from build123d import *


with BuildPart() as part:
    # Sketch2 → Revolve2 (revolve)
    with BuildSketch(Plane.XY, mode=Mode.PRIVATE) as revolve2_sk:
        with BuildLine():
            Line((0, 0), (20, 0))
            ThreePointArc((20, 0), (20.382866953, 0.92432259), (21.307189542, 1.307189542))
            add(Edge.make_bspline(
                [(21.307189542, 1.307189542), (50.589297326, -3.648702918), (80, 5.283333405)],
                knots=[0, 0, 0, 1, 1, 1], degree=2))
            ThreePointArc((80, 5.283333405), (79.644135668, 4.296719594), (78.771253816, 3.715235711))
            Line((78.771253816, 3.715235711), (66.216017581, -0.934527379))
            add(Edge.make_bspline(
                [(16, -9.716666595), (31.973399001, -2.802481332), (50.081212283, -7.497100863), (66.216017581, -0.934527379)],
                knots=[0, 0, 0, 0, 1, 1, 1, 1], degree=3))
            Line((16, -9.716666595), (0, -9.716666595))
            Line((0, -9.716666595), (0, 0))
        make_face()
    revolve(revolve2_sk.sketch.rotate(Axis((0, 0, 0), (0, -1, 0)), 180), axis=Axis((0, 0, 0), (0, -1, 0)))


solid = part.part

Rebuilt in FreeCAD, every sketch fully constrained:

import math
import FreeCAD as App
import Part
import Sketcher

V = App.Vector

doc = App.newDocument("Part")
params = doc.addObject("Spreadsheet::Sheet", "Params")
for row, (alias, value) in enumerate([
    ("sketch1_width", "20 mm"),
    ("revolution_angle", "360 deg"),
], start=1):
    params.set(f"A{row}", alias)
    params.set(f"B{row}", "=" + value)
    params.setAlias(f"B{row}", alias)

body = doc.addObject("PartDesign::Body", "Body")

sketch1 = body.newObject("Sketcher::SketchObject", "Sketch")
sketch1.AttachmentSupport = (doc.getObject("XY_Plane"), [""])
sketch1.MapMode = "FlatFace"
sketch1.addGeometry([
    Part.LineSegment(V(20, 0, 0), V(0, 0, 0)),
    Part.LineSegment(V(0, 0, 0), V(0, -9.716667, 0)),
    Part.LineSegment(V(0, -9.716667, 0), V(16, -9.716667, 0)),
    Part.BSplineCurve([V(16, -9.716667, 0), V(31.973399, -2.802481, 0), V(50.081212, -7.497101, 0), V(66.216018, -0.934527, 0)], [4, 4], [0, 1], False, 3, [1, 1, 1, 1], False),
    Part.LineSegment(V(66.216018, -0.934527, 0), V(78.771254, 3.715236, 0)),
    Part.ArcOfCircle(Part.Circle(V(78.325884, 5.329689, 0), V(0, 0, 1), 1.674758), math.radians(-74.577717), math.radians(-1.586095)),
    Part.BSplineCurve([V(21.30719, 1.30719, 0), V(50.589297, -3.648703, 0), V(80, 5.283333, 0)], [3, 3], [0, 1], False, 2, [1, 1, 1], False),
    Part.ArcOfCircle(Part.Circle(V(21.30719, 0, 0), V(0, 0, 1), 1.30719), math.radians(90), math.radians(180)),
], False)
sketch1.addConstraint([
    Sketcher.Constraint("Block", 3),
    Sketcher.Constraint("Block", 6),
    Sketcher.Constraint("Coincident", 0, 2, 1, 1),
    Sketcher.Constraint("Coincident", 1, 2, 2, 1),
    Sketcher.Constraint("Coincident", 2, 2, 3, 1),
    Sketcher.Constraint("Coincident", 3, 2, 4, 1),
    Sketcher.Constraint("Coincident", 4, 2, 5, 1),
    Sketcher.Constraint("Coincident", 5, 2, 6, 2),
    Sketcher.Constraint("Coincident", 6, 1, 7, 1),
    Sketcher.Constraint("Coincident", 7, 2, 0, 1),
    Sketcher.Constraint("Horizontal", 0),
    Sketcher.Constraint("Vertical", 1),
    Sketcher.Constraint("Horizontal", 2),
    Sketcher.Constraint("Coincident", 0, 2, -1, 1),
    Sketcher.Constraint("PointOnObject", 7, 3, -1),
    Sketcher.Constraint("DistanceX", 0, 2, 0, 1, 20.0),
    Sketcher.Constraint("Radius", 5, 1.674758),
    Sketcher.Constraint("DistanceY", -1, 1, 5, 3, 5.329689),
    Sketcher.Constraint("DistanceX", 5, 3, 4, 2, 0.44537),
])
sketch1.setExpression("Constraints[15]", "Params.sketch1_width")
revolution = body.newObject("PartDesign::Revolution", "Revolution")
revolution.Profile = sketch1
revolution.ReferenceAxis = (sketch1, ["V_Axis"])
revolution.setExpression("Angle", "Params.revolution_angle")

doc.recompute()
